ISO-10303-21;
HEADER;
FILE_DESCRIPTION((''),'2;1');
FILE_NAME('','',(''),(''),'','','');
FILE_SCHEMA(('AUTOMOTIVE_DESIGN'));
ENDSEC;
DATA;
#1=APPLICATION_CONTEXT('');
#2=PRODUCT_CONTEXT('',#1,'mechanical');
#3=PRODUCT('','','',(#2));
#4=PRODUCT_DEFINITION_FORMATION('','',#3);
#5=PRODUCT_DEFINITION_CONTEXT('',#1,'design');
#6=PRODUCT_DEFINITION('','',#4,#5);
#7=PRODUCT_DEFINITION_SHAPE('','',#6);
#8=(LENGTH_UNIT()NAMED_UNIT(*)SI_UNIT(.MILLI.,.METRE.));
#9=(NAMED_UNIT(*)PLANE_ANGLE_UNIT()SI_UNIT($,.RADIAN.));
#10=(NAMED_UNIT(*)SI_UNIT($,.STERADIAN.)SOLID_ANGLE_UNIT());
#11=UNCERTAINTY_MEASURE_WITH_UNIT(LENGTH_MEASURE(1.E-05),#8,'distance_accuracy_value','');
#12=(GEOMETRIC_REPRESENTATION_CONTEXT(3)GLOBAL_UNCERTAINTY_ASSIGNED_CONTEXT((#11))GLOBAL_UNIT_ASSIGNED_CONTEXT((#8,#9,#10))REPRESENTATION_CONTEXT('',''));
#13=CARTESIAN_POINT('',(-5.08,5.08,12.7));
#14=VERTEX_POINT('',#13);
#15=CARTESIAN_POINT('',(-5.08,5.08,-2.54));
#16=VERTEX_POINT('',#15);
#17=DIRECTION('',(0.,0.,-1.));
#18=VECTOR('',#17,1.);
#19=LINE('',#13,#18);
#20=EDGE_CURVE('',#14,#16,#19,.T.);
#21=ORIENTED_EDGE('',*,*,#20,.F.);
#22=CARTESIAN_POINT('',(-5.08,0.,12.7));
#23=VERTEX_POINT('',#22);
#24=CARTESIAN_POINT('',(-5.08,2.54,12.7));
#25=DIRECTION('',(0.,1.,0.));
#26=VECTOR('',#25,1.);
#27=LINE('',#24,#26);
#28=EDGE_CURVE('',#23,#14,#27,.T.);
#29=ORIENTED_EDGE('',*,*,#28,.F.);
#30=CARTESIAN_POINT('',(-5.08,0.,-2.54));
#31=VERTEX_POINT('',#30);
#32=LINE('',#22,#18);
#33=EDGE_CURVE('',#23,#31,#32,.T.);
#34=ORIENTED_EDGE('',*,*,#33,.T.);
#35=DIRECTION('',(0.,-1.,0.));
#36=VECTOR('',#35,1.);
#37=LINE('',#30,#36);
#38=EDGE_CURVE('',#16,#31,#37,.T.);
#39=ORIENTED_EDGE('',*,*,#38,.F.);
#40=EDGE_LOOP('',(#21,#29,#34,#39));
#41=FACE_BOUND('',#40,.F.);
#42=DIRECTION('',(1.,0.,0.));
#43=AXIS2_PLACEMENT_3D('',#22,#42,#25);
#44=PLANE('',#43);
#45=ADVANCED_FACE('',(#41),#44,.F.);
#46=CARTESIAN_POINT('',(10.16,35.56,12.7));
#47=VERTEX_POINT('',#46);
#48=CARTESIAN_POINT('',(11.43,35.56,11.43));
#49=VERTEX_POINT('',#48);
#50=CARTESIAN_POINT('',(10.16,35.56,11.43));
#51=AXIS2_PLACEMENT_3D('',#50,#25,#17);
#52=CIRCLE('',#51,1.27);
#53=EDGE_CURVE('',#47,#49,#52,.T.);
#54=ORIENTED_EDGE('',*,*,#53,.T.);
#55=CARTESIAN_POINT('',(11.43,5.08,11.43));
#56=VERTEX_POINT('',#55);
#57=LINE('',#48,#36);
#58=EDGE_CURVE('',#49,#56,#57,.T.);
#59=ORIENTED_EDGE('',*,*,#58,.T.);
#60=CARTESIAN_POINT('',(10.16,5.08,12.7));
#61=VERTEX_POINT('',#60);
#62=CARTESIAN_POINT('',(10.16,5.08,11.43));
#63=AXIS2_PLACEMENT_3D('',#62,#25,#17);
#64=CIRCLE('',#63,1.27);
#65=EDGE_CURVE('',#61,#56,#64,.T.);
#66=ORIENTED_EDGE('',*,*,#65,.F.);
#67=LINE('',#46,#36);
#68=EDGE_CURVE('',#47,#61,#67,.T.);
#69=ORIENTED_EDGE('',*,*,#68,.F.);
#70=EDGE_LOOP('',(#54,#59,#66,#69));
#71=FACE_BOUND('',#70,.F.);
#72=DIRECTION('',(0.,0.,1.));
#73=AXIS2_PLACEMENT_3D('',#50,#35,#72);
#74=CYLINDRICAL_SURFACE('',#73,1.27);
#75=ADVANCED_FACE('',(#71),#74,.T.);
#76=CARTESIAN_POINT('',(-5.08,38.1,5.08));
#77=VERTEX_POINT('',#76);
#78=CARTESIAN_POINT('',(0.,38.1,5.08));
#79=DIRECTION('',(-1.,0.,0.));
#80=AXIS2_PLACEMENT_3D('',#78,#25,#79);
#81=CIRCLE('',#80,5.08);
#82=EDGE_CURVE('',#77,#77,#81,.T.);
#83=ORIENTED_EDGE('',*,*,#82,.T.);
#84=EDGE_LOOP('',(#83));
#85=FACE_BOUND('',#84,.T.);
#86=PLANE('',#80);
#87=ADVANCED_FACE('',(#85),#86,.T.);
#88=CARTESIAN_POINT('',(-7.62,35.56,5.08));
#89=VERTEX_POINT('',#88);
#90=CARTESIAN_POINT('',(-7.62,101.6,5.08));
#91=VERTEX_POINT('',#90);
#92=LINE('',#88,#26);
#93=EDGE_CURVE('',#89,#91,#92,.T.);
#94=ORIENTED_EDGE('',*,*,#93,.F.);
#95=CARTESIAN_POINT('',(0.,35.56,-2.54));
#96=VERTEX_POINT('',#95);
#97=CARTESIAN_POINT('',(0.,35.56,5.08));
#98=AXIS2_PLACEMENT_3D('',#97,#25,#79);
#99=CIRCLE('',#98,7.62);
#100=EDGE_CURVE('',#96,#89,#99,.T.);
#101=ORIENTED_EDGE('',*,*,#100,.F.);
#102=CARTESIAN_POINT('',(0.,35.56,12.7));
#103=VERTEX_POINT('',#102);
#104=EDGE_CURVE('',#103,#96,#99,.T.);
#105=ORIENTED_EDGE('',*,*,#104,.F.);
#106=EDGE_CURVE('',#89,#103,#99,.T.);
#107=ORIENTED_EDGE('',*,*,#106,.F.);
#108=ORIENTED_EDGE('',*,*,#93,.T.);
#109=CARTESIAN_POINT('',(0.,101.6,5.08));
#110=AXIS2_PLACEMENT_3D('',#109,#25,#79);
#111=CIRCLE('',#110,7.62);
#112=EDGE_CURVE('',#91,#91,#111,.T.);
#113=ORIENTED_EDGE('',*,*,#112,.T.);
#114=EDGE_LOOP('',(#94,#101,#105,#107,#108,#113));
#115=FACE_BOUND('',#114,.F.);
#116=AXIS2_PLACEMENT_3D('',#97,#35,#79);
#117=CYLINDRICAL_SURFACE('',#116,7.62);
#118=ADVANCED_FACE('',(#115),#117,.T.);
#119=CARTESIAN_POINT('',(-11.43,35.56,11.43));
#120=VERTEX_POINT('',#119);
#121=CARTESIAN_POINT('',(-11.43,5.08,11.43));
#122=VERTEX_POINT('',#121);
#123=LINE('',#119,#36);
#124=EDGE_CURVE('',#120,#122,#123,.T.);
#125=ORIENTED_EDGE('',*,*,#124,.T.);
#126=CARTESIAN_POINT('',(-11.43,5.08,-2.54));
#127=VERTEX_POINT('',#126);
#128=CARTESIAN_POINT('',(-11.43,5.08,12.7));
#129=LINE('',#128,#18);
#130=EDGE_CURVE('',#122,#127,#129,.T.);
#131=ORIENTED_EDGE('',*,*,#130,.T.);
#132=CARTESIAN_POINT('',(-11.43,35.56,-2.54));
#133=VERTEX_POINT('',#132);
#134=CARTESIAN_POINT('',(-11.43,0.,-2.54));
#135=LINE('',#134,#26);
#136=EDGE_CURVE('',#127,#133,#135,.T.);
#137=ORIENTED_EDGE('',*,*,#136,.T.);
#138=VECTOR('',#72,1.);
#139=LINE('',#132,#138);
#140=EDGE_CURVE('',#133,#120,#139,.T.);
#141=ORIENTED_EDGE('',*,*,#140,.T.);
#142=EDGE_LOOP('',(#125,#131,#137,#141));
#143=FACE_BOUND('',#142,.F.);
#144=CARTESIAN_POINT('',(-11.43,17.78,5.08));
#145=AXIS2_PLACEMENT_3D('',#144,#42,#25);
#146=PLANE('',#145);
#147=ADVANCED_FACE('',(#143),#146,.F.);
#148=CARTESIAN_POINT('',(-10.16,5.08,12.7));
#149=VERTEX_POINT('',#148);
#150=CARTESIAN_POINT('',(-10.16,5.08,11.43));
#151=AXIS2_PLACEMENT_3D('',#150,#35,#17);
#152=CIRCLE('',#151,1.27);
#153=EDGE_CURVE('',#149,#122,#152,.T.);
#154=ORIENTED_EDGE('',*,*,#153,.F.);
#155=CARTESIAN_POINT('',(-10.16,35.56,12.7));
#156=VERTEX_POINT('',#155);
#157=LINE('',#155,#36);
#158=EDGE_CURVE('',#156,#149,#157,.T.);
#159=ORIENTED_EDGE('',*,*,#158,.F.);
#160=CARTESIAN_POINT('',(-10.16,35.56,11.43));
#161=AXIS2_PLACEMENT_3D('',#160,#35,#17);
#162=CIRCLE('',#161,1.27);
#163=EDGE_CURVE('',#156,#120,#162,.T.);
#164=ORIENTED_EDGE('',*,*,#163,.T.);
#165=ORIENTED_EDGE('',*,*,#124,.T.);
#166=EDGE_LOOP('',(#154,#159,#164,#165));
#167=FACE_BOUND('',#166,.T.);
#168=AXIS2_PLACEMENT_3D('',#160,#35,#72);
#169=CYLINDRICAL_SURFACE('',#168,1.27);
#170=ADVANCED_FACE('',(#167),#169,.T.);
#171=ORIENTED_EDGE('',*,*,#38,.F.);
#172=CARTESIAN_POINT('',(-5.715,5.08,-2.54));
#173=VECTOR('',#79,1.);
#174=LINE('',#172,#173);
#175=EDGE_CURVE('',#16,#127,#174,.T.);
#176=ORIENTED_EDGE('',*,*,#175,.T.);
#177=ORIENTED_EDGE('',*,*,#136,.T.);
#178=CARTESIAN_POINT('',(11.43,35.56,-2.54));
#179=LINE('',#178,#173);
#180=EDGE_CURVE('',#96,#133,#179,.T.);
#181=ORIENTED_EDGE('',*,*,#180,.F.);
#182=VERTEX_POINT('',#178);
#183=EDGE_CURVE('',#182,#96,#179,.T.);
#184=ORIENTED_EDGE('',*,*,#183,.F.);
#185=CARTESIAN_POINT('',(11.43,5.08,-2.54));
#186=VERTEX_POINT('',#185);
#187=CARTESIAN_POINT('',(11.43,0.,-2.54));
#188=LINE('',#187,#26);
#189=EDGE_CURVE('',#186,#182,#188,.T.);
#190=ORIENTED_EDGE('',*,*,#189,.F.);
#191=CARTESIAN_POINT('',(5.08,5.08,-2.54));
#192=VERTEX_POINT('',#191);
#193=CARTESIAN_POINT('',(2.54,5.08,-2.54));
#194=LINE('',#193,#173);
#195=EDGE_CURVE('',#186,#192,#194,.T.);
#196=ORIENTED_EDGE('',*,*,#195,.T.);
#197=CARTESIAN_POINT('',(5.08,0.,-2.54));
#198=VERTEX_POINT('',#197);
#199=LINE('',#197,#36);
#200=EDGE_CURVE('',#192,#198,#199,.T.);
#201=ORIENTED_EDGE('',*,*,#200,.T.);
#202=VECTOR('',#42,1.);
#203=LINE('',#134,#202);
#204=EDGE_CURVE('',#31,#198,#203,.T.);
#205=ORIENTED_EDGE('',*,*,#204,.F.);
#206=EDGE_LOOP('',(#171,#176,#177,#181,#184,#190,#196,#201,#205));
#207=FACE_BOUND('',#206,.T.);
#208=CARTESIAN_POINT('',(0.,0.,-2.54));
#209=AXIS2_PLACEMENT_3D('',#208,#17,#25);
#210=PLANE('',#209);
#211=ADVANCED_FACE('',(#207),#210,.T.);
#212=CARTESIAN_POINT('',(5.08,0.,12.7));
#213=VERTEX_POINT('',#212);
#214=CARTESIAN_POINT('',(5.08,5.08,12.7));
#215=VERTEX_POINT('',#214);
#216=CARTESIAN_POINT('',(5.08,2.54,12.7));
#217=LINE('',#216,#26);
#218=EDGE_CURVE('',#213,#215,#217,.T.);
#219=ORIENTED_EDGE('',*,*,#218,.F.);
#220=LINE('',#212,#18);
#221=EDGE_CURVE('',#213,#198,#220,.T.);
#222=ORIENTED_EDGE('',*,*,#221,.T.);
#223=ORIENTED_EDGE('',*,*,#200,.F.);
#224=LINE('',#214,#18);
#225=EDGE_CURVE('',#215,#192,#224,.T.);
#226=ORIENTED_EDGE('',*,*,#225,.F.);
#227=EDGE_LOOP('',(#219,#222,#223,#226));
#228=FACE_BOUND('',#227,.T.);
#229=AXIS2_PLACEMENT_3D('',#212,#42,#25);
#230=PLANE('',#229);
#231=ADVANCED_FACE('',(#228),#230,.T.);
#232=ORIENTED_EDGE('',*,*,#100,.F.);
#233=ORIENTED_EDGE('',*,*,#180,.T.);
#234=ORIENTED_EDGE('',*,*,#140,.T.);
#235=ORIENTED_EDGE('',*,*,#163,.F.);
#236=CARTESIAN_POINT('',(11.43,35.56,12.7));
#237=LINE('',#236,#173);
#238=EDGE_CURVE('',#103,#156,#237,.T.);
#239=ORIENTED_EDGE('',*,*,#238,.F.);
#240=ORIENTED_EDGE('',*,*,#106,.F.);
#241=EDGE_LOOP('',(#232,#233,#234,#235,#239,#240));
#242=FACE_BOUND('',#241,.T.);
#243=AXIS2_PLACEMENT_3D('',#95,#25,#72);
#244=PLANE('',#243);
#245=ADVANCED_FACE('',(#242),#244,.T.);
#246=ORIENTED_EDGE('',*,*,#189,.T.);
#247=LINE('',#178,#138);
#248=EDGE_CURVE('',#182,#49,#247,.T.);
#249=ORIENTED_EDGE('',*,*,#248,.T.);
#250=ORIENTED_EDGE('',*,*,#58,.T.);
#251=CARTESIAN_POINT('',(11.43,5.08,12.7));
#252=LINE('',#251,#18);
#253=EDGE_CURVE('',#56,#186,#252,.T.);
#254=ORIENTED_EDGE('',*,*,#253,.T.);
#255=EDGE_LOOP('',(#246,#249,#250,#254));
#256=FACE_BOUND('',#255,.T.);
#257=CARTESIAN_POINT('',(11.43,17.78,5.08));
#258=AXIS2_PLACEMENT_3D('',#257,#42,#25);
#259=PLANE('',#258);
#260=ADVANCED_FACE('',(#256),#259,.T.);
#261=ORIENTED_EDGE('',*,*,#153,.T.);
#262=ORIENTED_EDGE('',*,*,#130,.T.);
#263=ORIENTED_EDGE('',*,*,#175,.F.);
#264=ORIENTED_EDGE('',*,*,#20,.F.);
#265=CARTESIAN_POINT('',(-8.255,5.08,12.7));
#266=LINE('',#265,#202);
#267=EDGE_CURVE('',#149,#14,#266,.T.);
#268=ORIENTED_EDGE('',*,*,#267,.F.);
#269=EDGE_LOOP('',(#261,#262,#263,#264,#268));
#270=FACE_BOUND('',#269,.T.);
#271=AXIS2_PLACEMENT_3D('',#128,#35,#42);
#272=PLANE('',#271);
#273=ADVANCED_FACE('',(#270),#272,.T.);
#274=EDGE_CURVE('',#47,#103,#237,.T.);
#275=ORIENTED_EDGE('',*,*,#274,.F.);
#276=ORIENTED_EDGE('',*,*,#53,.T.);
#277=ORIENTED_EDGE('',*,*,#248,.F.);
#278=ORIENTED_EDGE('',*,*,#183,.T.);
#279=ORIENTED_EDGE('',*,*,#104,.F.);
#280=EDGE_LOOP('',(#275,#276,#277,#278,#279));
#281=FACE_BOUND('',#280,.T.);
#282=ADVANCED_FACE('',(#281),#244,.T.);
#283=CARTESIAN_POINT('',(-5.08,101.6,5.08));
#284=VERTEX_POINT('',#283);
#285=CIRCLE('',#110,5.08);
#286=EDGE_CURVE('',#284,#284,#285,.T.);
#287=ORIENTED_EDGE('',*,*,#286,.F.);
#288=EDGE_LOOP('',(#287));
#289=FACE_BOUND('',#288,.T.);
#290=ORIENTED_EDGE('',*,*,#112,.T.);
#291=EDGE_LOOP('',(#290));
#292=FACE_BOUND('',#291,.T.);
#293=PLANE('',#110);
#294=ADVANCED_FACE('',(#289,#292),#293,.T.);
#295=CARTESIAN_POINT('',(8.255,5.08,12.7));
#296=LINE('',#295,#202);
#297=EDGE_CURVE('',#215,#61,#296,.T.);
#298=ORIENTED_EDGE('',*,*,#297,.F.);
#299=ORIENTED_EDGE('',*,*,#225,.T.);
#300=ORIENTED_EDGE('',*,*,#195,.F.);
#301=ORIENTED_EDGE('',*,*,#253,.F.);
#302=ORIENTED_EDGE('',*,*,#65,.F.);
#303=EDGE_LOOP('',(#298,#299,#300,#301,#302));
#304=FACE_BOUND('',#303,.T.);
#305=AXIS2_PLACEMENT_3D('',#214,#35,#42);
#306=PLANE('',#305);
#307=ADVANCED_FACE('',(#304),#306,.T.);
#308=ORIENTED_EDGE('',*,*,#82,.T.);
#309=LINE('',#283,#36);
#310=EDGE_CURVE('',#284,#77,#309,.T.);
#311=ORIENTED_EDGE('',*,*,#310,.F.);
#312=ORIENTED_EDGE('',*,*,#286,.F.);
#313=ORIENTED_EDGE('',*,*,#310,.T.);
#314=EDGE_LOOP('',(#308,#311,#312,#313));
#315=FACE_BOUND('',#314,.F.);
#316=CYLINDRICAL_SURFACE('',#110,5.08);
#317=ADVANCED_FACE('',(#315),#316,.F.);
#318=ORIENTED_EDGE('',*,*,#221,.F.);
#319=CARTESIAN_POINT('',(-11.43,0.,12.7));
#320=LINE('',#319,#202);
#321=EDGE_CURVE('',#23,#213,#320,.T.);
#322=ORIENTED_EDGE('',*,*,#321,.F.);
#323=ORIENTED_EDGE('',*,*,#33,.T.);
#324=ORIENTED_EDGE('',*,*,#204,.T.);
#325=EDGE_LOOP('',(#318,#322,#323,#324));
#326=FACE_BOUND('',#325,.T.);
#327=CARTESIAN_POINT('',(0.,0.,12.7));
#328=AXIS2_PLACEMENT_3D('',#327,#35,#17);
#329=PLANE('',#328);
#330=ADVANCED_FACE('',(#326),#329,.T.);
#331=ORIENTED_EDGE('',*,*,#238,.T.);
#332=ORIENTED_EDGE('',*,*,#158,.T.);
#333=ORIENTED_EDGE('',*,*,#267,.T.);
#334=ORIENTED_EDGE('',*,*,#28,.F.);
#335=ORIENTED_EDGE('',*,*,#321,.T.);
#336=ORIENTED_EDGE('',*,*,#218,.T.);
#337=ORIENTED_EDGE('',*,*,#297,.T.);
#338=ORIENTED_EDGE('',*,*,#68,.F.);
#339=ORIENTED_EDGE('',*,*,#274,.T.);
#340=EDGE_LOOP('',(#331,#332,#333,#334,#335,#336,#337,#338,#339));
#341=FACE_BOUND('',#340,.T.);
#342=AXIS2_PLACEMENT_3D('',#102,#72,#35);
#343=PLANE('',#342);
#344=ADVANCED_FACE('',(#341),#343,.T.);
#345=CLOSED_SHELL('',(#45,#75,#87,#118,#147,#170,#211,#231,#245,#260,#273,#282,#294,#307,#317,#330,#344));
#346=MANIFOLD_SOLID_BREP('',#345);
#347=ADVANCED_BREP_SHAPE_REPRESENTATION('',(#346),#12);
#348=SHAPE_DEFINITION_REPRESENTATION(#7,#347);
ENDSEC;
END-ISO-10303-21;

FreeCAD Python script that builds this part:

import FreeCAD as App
import Part
import Sketcher

V = App.Vector
Q = App.Units.Quantity


def edges_at(feature, points):
    """Names of the edges that pass closest to the given points."""
    edges = feature.Shape.Edges
    near = lambda p: min(range(len(edges)), key=lambda i: edges[i].distToShape(Part.Vertex(*p))[0])
    return sorted({f"Edge{near(p) + 1}" for p in points})


def add_polygon(sketch, points):
    """Adds a closed chain of lines whose ends are joined by coincident constraints."""
    first, n = sketch.GeometryCount, len(points)
    for a, b in zip(points, points[1:] + points[:1]):
        sketch.addGeometry(Part.LineSegment(App.Vector(*a, 0), App.Vector(*b, 0)), False)
    for i in range(n):
        sketch.addConstraint(Sketcher.Constraint("Coincident", first + i, 2, first + (i + 1) % n, 1))

doc = App.newDocument("Part")
params = doc.addObject("Spreadsheet::Sheet", "Params")
for row, (alias, value) in enumerate([
    ("sketch1_width", "1.4 in"),
    ("sketch1_height", "0.6 in"),
    ("pad1_length", "0.9 in"),
    ("sketch2_height", "0.2 in"),
    ("sketch2_width", "0.25 in"),
    ("pocket1_length", "1 in"),
    ("sketch3_diameter", "0.6 in"),
    ("pad2_length", "2.6 in"),
    ("sketch4_diameter", "0.4 in"),
    ("pocket2_length", "2.5 in"),
    ("fillet_radius", "0.05 in"),
], start=1):
    params.set(f"A{row}", alias)
    params.set(f"B{row}", "=" + value)
    params.setAlias(f"B{row}", alias)

body = doc.addObject("PartDesign::Body", "Body")

sketch1 = body.newObject("Sketcher::SketchObject", "Sketch")
sketch1.AttachmentSupport = (doc.getObject("YZ_Plane"), [""])
sketch1.MapMode = "FlatFace"
add_polygon(sketch1, [(35.56, 12.7), (0, 12.7), (0, -2.54), (35.56, -2.54)])
sketch1.addConstraint([
    Sketcher.Constraint("Horizontal", 0),
    Sketcher.Constraint("Vertical", 1),
    Sketcher.Constraint("Horizontal", 2),
    Sketcher.Constraint("Vertical", 3),
    Sketcher.Constraint("PointOnObject", 0, 2, -2),
    Sketcher.Constraint("DistanceX", 0, 2, 0, 1, Q("1.4 in")),
    Sketcher.Constraint("DistanceY", 1, 2, 1, 1, Q("0.6 in")),
    Sketcher.Constraint("DistanceY", -1, 1, 0, 2, Q("0.5 in")),
])
sketch1.setExpression("Constraints[9]", "Params.sketch1_width")
sketch1.setExpression("Constraints[10]", "Params.sketch1_height")
pad1 = body.newObject("PartDesign::Pad", "Pad")
pad1.Profile = sketch1
pad1.setExpression("Length", "Params.pad1_length")
pad1.Midplane = True

sketch2 = body.newObject("Sketcher::SketchObject", "Sketch001")
sketch2.AttachmentSupport = (doc.getObject("XY_Plane"), [""])
sketch2.MapMode = "FlatFace"
sketch2.AttachmentOffset = App.Placement(V(0, 0, 0.5 * 25.4), App.Rotation())
add_polygon(sketch2, [(-11.43, 5.08), (-11.43, 0), (-5.08, 0), (-5.08, 5.08)])
add_polygon(sketch2, [(5.08, 5.08), (5.08, 0), (11.43, 0), (11.43, 5.08)])
sketch2.addConstraint([
    Sketcher.Constraint("Vertical", 0),
    Sketcher.Constraint("Horizontal", 1),
    Sketcher.Constraint("Vertical", 2),
    Sketcher.Constraint("Horizontal", 3),
    Sketcher.Constraint("Vertical", 4),
    Sketcher.Constraint("Horizontal", 5),
    Sketcher.Constraint("Vertical", 6),
    Sketcher.Constraint("Horizontal", 7),
    Sketcher.Constraint("Symmetric", 1, 2, 4, 2, -1, 1),
    Sketcher.Constraint("Symmetric", 0, 2, 5, 2, -2),
    Sketcher.Constraint("Horizontal", 3, 2, 6, 2),
    Sketcher.Constraint("DistanceY", 0, 2, 0, 1, Q("0.2 in")),
    Sketcher.Constraint("DistanceX", 1, 1, 1, 2, Q("0.25 in")),
    Sketcher.Constraint("DistanceX", 1, 2, -1, 1, Q("0.2 in")),
])
sketch2.setExpression("Constraints[19]", "Params.sketch2_height")
sketch2.setExpression("Constraints[20]", "Params.sketch2_width")
pocket1 = body.newObject("PartDesign::Pocket", "Pocket")
pocket1.Profile = sketch2
pocket1.setExpression("Length", "Params.pocket1_length")

sketch3 = body.newObject("Sketcher::SketchObject", "Sketch002")
sketch3.AttachmentSupport = (doc.getObject("XZ_Plane"), [""])
sketch3.MapMode = "FlatFace"
sketch3.AttachmentOffset = App.Placement(V(0, 0, -1.4 * 25.4), App.Rotation())
sketch3.addGeometry(Part.Circle(V(0, 5.08, 0), V(0, 0, 1), 7.62), False)
sketch3.addConstraint([
    Sketcher.Constraint("PointOnObject", 0, 3, -2),
    Sketcher.Constraint("Diameter", 0, Q("0.6 in")),
    Sketcher.Constraint("DistanceY", -1, 1, 0, 3, Q("0.2 in")),
])
sketch3.setExpression("Constraints[1]", "Params.sketch3_diameter")
pad2 = body.newObject("PartDesign::Pad", "Pad001")
pad2.Profile = sketch3
pad2.setExpression("Length", "Params.pad2_length")
pad2.Reversed = True

sketch4 = body.newObject("Sketcher::SketchObject", "Sketch003")
sketch4.AttachmentSupport = (doc.getObject("XZ_Plane"), [""])
sketch4.MapMode = "FlatFace"
sketch4.AttachmentOffset = App.Placement(V(0, 0, -4 * 25.4), App.Rotation())
sketch4.addGeometry(Part.Circle(V(0, 5.08, 0), V(0, 0, 1), 5.08), False)
sketch4.addConstraint([
    Sketcher.Constraint("PointOnObject", 0, 3, -2),
    Sketcher.Constraint("Diameter", 0, Q("0.4 in")),
    Sketcher.Constraint("DistanceY", -1, 1, 0, 3, Q("0.2 in")),
])
sketch4.setExpression("Constraints[1]", "Params.sketch4_diameter")
pocket2 = body.newObject("PartDesign::Pocket", "Pocket001")
pocket2.Profile = sketch4
pocket2.setExpression("Length", "Params.pocket2_length")
pocket2.Reversed = True
doc.recompute()

fillet = body.newObject("PartDesign::Fillet", "Fillet")
fillet.Base = (pocket2, edges_at(pocket2, [(-11.43, 20.32, 12.7), (11.43, 20.32, 12.7)]))
fillet.setExpression("Radius", "Params.fillet_radius")

doc.recompute()
